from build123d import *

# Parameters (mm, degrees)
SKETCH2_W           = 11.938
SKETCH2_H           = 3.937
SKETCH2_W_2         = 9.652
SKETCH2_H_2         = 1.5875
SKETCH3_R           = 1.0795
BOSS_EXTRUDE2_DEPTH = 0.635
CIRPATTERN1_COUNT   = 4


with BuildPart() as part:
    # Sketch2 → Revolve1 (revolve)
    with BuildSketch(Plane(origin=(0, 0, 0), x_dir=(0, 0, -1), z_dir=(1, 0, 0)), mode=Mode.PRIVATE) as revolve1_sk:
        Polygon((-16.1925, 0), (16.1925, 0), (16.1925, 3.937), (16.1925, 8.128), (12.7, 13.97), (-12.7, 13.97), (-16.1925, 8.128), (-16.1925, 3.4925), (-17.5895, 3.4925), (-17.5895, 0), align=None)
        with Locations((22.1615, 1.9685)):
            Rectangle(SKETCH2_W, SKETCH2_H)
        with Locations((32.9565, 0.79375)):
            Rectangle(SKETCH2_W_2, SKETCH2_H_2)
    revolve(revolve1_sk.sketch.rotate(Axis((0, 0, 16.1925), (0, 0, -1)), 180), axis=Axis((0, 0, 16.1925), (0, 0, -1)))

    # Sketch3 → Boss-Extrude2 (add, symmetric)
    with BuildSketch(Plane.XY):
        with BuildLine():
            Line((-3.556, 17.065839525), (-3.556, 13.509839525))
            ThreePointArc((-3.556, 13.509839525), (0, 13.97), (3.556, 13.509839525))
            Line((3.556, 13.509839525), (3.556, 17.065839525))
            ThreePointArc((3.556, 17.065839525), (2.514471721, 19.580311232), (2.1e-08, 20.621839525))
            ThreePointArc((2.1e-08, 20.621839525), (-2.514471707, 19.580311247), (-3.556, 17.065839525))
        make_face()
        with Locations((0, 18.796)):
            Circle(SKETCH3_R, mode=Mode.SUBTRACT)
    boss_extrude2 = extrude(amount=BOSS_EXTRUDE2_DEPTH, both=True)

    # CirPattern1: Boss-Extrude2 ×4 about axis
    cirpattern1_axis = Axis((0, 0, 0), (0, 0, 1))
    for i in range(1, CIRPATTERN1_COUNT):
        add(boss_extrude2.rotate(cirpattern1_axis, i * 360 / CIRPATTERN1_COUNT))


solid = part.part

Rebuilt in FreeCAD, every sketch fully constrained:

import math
import FreeCAD as App
import Part
import Sketcher

V = App.Vector
Q = App.Units.Quantity

doc = App.newDocument("Part")
params = doc.addObject("Spreadsheet::Sheet", "Params")
for row, (alias, value) in enumerate([
    ("sketch1_height", "1 in"),
    ("sketch1_height2", "2.18 in"),
    ("sketch1_height3", "0.38 in"),
    ("sketch1_height4", "0.47 in"),
    ("sketch1_width", "0.165 in"),
    ("revolution_angle", "360 deg"),
    ("sketch2_radius", "0.55 in"),
    ("sketch2_radius2", "0.14 in"),
    ("sketch2_diameter", "0.085 in"),
    ("sketch2_height", "0.14 in"),
    ("pad1_length", "0.05 in"),
], start=1):
    params.set(f"A{row}", alias)
    params.set(f"B{row}", "=" + value)
    params.setAlias(f"B{row}", alias)

body = doc.addObject("PartDesign::Body", "Body")

sketch1 = body.newObject("Sketcher::SketchObject", "Sketch")
sketch1.AttachmentSupport = (doc.getObject("YZ_Plane"), [""])
sketch1.MapMode = "FlatFace"
sketch1.addGeometry([
    Part.LineSegment(V(3.9, -16.2, 0), V(8.1, -16.2, 0)),
    Part.LineSegment(V(8.1, -16.2, 0), V(14, -12.7, 0)),
    Part.LineSegment(V(14, -12.7, 0), V(14, 12.7, 0)),
    Part.LineSegment(V(14, 12.7, 0), V(8.1, 16.2, 0)),
    Part.LineSegment(V(8.1, 16.2, 0), V(3.5, 16.2, 0)),
    Part.LineSegment(V(3.5, 16.2, 0), V(3.5, 17.6, 0)),
    Part.LineSegment(V(3.5, 17.6, 0), V(0, 17.6, 0)),
    Part.LineSegment(V(0, 17.6, 0), V(0, -37.8, 0)),
    Part.LineSegment(V(0, -37.8, 0), V(1.6, -37.8, 0)),
    Part.LineSegment(V(1.6, -37.8, 0), V(1.6, -28.1, 0)),
    Part.LineSegment(V(1.6, -28.1, 0), V(3.9, -28.1, 0)),
    Part.LineSegment(V(3.9, -28.1, 0), V(3.9, -16.2, 0)),
], False)
sketch1.addConstraint([
    Sketcher.Constraint("Coincident", 0, 2, 1, 1),
    Sketcher.Constraint("Coincident", 1, 2, 2, 1),
    Sketcher.Constraint("Coincident", 2, 2, 3, 1),
    Sketcher.Constraint("Coincident", 3, 2, 4, 1),
    Sketcher.Constraint("Coincident", 4, 2, 5, 1),
    Sketcher.Constraint("Coincident", 5, 2, 6, 1),
    Sketcher.Constraint("Coincident", 6, 2, 7, 1),
    Sketcher.Constraint("Coincident", 7, 2, 8, 1),
    Sketcher.Constraint("Coincident", 8, 2, 9, 1),
    Sketcher.Constraint("Coincident", 9, 2, 10, 1),
    Sketcher.Constraint("Coincident", 10, 2, 11, 1),
    Sketcher.Constraint("Coincident", 11, 2, 0, 1),
    Sketcher.Constraint("Horizontal", 0),
    Sketcher.Constraint("Vertical", 2),
    Sketcher.Constraint("Horizontal", 4),
    Sketcher.Constraint("Vertical", 5),
    Sketcher.Constraint("Horizontal", 6),
    Sketcher.Constraint("Vertical", 7),
    Sketcher.Constraint("Horizontal", 8),
    Sketcher.Constraint("Vertical", 9),
    Sketcher.Constraint("Horizontal", 10),
    Sketcher.Constraint("Vertical", 11),
    Sketcher.Constraint("Symmetric", 0, 2, 3, 2, -1),
    Sketcher.Constraint("PointOnObject", 6, 2, -2),
    Sketcher.Constraint("Equal", 1, 3),
    Sketcher.Constraint("DistanceY", 2, 1, 2, 2, Q("1 in")),
    Sketcher.Constraint("DistanceY", 7, 2, 7, 1, Q("2.18 in")),
    Sketcher.Constraint("DistanceY", 9, 1, 9, 2, Q("0.38 in")),
    Sketcher.Constraint("DistanceY", 11, 1, 11, 2, Q("0.47 in")),
    Sketcher.Constraint("DistanceX", 0, 1, 0, 2, Q("0.165 in")),
    Sketcher.Constraint("DistanceX", 8, 1, 8, 2, Q("0.0625 in")),
    Sketcher.Constraint("DistanceY", 5, 1, 5, 2, Q("0.055 in")),
    Sketcher.Constraint("DistanceX", -1, 1, 0, 2, Q("0.32 in")),
    Sketcher.Constraint("DistanceX", -1, 1, 1, 2, Q("0.55 in")),
    Sketcher.Constraint("DistanceX", 4, 2, 4, 1, Q("0.1825 in")),
])
sketch1.setExpression("Constraints[25]", "Params.sketch1_height")
sketch1.setExpression("Constraints[26]", "Params.sketch1_height2")
sketch1.setExpression("Constraints[27]", "Params.sketch1_height3")
sketch1.setExpression("Constraints[28]", "Params.sketch1_height4")
sketch1.setExpression("Constraints[29]", "Params.sketch1_width")
revolution = body.newObject("PartDesign::Revolution", "Revolution")
revolution.Profile = sketch1
revolution.ReferenceAxis = (sketch1, ["V_Axis"])
revolution.setExpression("Angle", "Params.revolution_angle")

sketch2 = body.newObject("Sketcher::SketchObject", "Sketch001")
sketch2.AttachmentSupport = (doc.getObject("XY_Plane"), [""])
sketch2.MapMode = "FlatFace"
sketch2.addGeometry([
    Part.LineSegment(V(-3.6, 17.1, 0), V(-3.6, 13.5, 0)),
    Part.ArcOfCircle(Part.Circle(V(0, 0, 0), V(0, 0, 1), 14), math.radians(75), math.radians(105)),
    Part.LineSegment(V(3.6, 13.5, 0), V(3.6, 17.1, 0)),
    Part.ArcOfCircle(Part.Circle(V(0, 17.1, 0), V(0, 0, 1), 3.6), math.radians(0), math.radians(90)),
    Part.ArcOfCircle(Part.Circle(V(0, 17.1, 0), V(0, 0, 1), 3.6), math.radians(90), math.radians(180)),
    Part.Circle(V(0, 18.8, 0), V(0, 0, 1), 1.1),
], False)
sketch2.addConstraint([
    Sketcher.Constraint("Coincident", 0, 2, 1, 2),
    Sketcher.Constraint("Coincident", 1, 1, 2, 1),
    Sketcher.Constraint("Tangent", 2, 2, 3, 1),
    Sketcher.Constraint("Tangent", 3, 2, 4, 1),
    Sketcher.Constraint("Tangent", 4, 2, 0, 1),
    Sketcher.Constraint("Vertical", 0),
    Sketcher.Constraint("Vertical", 2),
    Sketcher.Constraint("Coincident", 1, 3, -1, 1),
    Sketcher.Constraint("Equal", 3, 4),
    Sketcher.Constraint("PointOnObject", 3, 3, -2),
    Sketcher.Constraint("PointOnObject", 5, 3, -2),
    Sketcher.Constraint("PointOnObject", 3, 2, -2),
    Sketcher.Constraint("Radius", 1, Q("0.55 in")),
    Sketcher.Constraint("Radius", 3, Q("0.14 in")),
    Sketcher.Constraint("Diameter", 5, Q("0.085 in")),
    Sketcher.Constraint("DistanceY", 0, 2, 0, 1, Q("0.14 in")),
    Sketcher.Constraint("DistanceY", -1, 1, 5, 3, Q("0.74 in")),
])
sketch2.setExpression("Constraints[12]", "Params.sketch2_radius")
sketch2.setExpression("Constraints[13]", "Params.sketch2_radius2")
sketch2.setExpression("Constraints[14]", "Params.sketch2_diameter")
sketch2.setExpression("Constraints[15]", "Params.sketch2_height")
pad1 = body.newObject("PartDesign::Pad", "Pad")
pad1.Profile = sketch2
pad1.setExpression("Length", "Params.pad1_length")
pad1.Midplane = True
doc.recompute()

polarpattern = body.newObject("PartDesign::PolarPattern", "PolarPattern")
polarpattern.Originals = [pad1]
polarpattern.Axis = (doc.getObject("Z_Axis"), [""])
polarpattern.Angle = 360
polarpattern.Occurrences = 4
body.Tip = polarpattern

doc.recompute()
